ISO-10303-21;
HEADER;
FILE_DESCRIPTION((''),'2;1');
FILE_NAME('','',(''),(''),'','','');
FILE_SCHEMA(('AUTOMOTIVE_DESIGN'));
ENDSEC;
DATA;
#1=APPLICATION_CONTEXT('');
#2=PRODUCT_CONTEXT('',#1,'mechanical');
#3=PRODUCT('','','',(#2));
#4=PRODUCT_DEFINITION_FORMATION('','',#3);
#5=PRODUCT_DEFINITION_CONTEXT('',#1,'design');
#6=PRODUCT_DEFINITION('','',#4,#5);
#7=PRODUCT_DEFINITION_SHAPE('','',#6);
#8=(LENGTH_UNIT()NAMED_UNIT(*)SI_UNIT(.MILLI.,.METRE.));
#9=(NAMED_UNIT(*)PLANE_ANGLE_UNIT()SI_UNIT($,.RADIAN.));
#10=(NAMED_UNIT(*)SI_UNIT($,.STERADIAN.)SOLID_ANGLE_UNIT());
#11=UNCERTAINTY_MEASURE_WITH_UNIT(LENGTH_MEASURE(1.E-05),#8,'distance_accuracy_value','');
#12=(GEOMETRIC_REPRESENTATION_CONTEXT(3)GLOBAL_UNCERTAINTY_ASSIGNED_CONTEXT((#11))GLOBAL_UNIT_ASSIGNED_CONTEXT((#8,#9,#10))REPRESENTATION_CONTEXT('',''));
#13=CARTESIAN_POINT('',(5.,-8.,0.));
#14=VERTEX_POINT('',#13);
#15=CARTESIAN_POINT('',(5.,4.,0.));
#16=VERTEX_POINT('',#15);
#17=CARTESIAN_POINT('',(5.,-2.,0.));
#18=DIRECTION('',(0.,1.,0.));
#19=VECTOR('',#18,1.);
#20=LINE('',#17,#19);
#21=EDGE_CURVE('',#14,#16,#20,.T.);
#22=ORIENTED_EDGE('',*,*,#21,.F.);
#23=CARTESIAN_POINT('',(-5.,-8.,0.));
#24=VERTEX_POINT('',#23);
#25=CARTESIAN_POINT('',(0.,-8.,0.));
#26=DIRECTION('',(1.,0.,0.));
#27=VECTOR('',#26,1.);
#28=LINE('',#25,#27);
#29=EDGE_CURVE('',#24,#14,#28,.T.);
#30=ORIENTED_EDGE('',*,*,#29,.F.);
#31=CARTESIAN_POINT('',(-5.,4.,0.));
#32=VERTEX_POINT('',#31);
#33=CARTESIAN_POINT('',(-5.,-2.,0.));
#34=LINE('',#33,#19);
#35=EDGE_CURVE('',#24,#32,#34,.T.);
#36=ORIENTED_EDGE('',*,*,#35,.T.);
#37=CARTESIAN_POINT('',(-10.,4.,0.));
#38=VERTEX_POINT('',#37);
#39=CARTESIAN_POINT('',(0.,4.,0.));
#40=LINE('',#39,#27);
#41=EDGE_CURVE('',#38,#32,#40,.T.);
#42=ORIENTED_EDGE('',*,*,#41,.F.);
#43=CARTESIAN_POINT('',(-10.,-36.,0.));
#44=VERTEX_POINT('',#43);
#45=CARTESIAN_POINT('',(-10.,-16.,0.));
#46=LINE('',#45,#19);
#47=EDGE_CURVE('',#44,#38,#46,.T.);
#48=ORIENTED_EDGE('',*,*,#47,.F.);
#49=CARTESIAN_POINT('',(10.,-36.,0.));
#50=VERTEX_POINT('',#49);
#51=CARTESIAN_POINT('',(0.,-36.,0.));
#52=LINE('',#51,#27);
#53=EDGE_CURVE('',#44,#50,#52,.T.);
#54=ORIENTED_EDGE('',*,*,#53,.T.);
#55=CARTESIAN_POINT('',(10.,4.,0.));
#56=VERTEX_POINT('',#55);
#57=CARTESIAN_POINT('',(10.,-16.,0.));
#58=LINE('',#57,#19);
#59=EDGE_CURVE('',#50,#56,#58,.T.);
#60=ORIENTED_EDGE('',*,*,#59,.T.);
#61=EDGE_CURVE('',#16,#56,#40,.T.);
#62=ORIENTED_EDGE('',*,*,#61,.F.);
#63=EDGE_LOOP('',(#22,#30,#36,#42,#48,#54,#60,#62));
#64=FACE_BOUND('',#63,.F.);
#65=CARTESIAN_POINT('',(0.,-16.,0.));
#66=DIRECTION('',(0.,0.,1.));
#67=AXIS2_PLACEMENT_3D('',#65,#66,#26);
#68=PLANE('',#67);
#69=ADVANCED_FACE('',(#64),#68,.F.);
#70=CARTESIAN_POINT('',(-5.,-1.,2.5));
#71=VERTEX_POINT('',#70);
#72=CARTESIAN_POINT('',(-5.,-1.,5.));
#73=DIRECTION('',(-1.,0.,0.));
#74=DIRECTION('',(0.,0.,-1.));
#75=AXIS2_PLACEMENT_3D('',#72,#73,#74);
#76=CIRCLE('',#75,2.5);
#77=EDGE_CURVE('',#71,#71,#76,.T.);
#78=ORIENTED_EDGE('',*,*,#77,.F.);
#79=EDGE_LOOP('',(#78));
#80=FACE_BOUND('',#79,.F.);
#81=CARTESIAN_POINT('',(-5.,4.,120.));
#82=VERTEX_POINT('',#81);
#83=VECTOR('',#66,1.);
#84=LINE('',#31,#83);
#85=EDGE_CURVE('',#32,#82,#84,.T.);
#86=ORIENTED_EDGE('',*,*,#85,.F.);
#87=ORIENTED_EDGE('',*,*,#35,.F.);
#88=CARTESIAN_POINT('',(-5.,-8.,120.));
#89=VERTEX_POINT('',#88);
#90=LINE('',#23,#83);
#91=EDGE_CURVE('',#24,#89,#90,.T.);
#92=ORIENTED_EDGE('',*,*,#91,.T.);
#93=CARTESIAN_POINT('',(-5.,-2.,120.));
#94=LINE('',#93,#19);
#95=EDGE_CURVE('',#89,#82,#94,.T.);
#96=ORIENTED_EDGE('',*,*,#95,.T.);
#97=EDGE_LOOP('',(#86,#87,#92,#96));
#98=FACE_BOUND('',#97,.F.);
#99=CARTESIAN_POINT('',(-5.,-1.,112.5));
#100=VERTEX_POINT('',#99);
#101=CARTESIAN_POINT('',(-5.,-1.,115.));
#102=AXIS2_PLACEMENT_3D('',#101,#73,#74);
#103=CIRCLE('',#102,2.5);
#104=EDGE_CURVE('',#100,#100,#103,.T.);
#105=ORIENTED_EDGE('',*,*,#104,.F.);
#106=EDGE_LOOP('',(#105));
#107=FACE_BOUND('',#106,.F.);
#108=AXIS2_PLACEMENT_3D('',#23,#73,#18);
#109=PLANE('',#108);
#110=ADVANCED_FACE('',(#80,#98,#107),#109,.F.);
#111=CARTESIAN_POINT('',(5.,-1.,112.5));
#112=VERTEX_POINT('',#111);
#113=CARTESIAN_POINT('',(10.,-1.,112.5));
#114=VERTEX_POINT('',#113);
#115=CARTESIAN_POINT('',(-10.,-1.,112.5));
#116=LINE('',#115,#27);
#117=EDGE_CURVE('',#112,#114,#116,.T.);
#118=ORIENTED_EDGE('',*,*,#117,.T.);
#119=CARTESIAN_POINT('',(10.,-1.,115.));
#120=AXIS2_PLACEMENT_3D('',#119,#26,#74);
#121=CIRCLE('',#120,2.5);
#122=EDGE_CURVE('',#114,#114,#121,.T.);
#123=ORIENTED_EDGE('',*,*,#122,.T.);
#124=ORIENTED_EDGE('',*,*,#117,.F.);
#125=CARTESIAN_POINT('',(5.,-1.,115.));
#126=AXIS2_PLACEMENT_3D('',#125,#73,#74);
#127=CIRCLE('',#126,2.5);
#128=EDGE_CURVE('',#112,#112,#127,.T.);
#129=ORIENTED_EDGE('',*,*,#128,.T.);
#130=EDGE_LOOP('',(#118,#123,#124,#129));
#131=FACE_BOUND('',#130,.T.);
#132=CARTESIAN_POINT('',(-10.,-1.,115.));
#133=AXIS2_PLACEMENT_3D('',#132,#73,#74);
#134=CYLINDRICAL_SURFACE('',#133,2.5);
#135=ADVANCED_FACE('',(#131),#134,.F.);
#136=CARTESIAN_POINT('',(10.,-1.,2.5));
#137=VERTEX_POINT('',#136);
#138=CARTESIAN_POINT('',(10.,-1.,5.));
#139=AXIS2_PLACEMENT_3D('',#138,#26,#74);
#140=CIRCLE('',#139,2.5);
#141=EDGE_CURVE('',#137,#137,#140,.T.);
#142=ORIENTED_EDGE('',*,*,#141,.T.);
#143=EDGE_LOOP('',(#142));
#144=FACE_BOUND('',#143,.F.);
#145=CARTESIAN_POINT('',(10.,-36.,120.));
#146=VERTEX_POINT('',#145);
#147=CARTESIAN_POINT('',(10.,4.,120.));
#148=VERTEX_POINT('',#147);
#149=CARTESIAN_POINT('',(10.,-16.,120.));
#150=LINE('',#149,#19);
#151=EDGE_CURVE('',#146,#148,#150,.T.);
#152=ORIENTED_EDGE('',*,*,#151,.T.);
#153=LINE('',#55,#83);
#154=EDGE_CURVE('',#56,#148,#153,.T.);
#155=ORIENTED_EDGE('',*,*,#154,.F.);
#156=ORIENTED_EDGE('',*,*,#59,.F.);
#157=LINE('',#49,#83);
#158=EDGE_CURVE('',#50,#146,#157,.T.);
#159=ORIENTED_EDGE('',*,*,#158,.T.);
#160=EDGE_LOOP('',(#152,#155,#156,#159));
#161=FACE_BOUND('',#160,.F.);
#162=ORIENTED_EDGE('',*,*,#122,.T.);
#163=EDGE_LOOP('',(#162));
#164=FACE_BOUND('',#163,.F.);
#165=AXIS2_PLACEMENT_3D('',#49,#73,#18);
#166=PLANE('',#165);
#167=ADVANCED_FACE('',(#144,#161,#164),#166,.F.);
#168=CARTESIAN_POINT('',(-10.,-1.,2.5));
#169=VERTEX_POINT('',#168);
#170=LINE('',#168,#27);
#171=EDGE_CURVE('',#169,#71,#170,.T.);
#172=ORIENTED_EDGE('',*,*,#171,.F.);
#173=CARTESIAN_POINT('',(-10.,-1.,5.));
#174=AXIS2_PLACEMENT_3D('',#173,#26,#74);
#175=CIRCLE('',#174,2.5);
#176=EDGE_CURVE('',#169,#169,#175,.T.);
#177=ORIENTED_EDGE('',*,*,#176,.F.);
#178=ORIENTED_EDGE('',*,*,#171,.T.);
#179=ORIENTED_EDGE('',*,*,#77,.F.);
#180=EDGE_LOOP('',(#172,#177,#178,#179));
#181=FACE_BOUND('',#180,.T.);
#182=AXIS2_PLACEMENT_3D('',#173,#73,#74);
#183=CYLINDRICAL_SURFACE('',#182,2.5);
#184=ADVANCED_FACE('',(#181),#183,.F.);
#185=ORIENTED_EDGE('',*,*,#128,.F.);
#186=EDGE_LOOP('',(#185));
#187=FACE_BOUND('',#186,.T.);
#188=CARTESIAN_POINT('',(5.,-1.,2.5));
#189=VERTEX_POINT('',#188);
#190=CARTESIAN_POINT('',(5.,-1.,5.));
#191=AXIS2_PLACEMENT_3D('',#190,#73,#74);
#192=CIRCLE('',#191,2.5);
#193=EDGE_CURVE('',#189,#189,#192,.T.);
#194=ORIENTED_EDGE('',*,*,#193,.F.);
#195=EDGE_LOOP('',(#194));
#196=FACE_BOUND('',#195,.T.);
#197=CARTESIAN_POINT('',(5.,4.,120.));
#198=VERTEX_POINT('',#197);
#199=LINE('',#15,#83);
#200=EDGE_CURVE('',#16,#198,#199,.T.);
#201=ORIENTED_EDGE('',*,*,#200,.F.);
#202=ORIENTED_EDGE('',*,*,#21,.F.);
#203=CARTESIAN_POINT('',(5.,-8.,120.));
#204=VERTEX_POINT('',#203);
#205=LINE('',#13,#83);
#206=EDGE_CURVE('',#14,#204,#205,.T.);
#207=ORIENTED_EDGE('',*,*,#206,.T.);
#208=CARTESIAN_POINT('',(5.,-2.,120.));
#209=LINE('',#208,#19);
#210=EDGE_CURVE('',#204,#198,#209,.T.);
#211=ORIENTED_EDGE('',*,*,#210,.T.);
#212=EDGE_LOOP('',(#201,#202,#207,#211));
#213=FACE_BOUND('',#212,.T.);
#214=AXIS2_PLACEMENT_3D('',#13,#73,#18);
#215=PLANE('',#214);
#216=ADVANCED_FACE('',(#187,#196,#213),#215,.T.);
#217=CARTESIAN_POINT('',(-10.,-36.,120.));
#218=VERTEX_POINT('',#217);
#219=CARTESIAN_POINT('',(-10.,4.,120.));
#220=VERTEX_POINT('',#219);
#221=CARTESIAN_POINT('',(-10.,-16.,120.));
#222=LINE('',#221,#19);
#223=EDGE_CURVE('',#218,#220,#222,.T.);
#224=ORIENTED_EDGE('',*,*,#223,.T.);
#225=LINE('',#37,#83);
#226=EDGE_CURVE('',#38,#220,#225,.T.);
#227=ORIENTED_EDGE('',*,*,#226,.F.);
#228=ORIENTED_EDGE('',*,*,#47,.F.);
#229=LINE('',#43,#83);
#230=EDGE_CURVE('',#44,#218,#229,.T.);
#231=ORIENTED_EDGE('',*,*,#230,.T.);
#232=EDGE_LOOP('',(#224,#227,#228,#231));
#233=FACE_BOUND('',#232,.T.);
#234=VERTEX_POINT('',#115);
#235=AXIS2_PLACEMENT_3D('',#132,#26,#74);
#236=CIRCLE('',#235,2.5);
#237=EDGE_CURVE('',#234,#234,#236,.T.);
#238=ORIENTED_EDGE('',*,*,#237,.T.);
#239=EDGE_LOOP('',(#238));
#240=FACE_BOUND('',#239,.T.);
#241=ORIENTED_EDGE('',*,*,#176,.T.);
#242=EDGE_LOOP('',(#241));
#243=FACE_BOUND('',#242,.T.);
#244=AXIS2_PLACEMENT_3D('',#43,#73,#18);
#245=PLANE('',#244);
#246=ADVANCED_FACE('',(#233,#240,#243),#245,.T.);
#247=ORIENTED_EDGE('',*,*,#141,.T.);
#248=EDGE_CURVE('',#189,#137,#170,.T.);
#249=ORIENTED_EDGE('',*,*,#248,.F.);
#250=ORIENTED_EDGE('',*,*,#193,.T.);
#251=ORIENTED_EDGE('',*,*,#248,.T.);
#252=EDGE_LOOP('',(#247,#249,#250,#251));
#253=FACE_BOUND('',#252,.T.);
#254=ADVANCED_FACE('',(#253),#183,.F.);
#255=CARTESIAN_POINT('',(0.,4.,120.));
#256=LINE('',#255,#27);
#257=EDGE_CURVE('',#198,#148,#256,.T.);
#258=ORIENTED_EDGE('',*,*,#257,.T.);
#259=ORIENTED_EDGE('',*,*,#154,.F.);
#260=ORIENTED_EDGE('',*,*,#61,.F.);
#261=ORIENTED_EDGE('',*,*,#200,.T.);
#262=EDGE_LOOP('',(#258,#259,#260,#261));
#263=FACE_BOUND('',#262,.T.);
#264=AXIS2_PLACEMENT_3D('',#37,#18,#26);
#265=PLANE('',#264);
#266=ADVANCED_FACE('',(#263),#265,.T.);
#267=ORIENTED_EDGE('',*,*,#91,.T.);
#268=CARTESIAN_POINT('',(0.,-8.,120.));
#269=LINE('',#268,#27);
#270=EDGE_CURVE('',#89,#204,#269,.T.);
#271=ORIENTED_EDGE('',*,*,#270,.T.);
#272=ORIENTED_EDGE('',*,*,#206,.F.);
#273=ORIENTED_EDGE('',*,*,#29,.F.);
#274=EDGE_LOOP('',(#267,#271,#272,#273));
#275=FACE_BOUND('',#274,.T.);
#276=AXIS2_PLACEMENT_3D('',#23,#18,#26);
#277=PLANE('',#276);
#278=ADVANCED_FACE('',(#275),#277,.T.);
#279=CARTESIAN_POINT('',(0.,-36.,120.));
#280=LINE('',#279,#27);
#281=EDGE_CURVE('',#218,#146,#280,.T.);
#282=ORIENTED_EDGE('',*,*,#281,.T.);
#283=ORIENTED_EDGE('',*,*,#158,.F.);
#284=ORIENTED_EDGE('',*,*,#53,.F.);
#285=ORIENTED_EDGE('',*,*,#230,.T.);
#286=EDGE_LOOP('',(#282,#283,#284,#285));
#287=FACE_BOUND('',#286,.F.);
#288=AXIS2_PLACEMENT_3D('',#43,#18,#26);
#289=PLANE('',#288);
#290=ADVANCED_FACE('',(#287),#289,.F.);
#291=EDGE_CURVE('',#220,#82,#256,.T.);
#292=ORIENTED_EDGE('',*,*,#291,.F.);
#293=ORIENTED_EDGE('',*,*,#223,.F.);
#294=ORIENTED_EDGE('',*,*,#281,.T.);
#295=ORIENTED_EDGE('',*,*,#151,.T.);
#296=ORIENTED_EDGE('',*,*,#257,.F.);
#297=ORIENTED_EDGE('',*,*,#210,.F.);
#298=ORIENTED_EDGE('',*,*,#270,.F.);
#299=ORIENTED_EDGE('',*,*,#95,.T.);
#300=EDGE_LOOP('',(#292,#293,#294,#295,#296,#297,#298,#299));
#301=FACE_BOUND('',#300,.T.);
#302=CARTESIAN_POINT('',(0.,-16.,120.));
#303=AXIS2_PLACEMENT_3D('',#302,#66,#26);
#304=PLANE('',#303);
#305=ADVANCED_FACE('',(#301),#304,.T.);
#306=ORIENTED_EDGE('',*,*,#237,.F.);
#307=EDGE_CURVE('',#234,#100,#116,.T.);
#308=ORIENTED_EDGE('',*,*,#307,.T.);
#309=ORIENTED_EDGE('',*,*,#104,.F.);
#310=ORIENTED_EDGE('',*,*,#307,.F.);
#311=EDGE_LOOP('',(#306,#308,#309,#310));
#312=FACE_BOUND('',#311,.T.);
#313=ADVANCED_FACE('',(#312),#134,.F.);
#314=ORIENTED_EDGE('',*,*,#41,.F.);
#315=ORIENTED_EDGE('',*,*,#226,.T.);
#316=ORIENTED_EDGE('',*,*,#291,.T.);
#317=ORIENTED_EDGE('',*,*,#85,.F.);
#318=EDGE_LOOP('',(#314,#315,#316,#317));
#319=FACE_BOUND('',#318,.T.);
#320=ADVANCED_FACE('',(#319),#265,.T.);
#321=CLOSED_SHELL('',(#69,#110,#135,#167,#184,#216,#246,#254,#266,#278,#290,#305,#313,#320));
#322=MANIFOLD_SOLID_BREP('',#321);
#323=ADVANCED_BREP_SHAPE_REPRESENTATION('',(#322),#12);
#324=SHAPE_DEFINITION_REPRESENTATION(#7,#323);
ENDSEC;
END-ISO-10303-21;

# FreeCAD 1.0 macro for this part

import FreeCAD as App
import Part
import Sketcher
Q = App.Units.Quantity


def add_polygon(sketch, points):
    """Adds a closed chain of lines whose ends are joined by coincident constraints."""
    first, n = sketch.GeometryCount, len(points)
    for a, b in zip(points, points[1:] + points[:1]):
        sketch.addGeometry(Part.LineSegment(App.Vector(*a, 0), App.Vector(*b, 0)), False)
    for i in range(n):
        sketch.addConstraint(Sketcher.Constraint("Coincident", first + i, 2, first + (i + 1) % n, 1))

doc = App.newDocument("Part")
body = doc.addObject("PartDesign::Body", "Body")

# Sketch on YZ plane
sketch1 = body.newObject("Sketcher::SketchObject", "Sketch")
sketch1.AttachmentSupport = (doc.getObject("YZ_Plane"), [""])
sketch1.MapMode = "FlatFace"
sketch1.AttachmentOffset = App.Placement(App.Vector(0, 0, -10), App.Rotation())
sketch1.addGeometry(Part.Circle(App.Vector(59, 115, 0), App.Vector(0, 0, 1), 2.5), False)
sketch1.addConstraint([
    Sketcher.Constraint("Diameter", 0, Q("5 mm")),
    Sketcher.Constraint("DistanceX", -1, 1, 0, 3, Q("59 mm")),
    Sketcher.Constraint("DistanceY", -1, 1, 0, 3, Q("115 mm")),
])
pad1 = body.newObject("PartDesign::Pad", "Pad")
pad1.Profile = sketch1
pad1.Length = 20
body2 = doc.addObject("PartDesign::Body", "Body001")
body2.AllowCompound = True

# Sketch on YZ plane
sketch2 = body2.newObject("Sketcher::SketchObject", "Sketch001")
sketch2.AttachmentSupport = (doc.getObject("YZ_Plane001"), [""])
sketch2.MapMode = "FlatFace"
sketch2.AttachmentOffset = App.Placement(App.Vector(0, 0, -10), App.Rotation())
sketch2.addGeometry(Part.Circle(App.Vector(59, 5, 0), App.Vector(0, 0, 1), 2.5), False)
sketch2.addConstraint([
    Sketcher.Constraint("Diameter", 0, Q("5 mm")),
    Sketcher.Constraint("DistanceX", -1, 1, 0, 3, Q("59 mm")),
    Sketcher.Constraint("DistanceY", -1, 1, 0, 3, Q("5 mm")),
])
pad2 = body2.newObject("PartDesign::Pad", "Pad001")
pad2.Profile = sketch2
pad2.Length = 20
doc.recompute()

boolean = body2.newObject("PartDesign::Boolean", "Boolean")
boolean.Type = "Fuse"
boolean.addObjects([body])
body3 = doc.addObject("PartDesign::Body", "Body002")
body3.AllowCompound = True
doc.recompute()

body2.Placement = App.Placement(App.Vector(0, -60, 0), App.Rotation(App.Vector(0, 0, 1), 0))
boolean2 = body3.newObject("PartDesign::Boolean", "Boolean001")
boolean2.Type = "Fuse"
boolean2.addObjects([body2])
body4 = doc.addObject("PartDesign::Body", "Body003")

# Sketch on XY plane
sketch3 = body4.newObject("Sketcher::SketchObject", "Sketch002")
sketch3.AttachmentSupport = (doc.getObject("XY_Plane003"), [""])
sketch3.MapMode = "FlatFace"
add_polygon(sketch3, [(-5, -60), (-5, -72), (5, -72), (5, -60)])  # lines 0-3
sketch3.addConstraint([
    Sketcher.Constraint("Vertical", 0),
    Sketcher.Constraint("Horizontal", 1),
    Sketcher.Constraint("Vertical", 2),
    Sketcher.Constraint("Horizontal", 3),
    Sketcher.Constraint("DistanceX", 1, 1, 1, 2, Q("10 mm")),
    Sketcher.Constraint("DistanceY", 0, 2, 0, 1, Q("12 mm")),
    Sketcher.Constraint("DistanceX", 0, 2, -1, 1, Q("5 mm")),
    Sketcher.Constraint("DistanceY", 0, 2, -1, 1, Q("72 mm")),
])
pad3 = body4.newObject("PartDesign::Pad", "Pad002")
pad3.Profile = sketch3
pad3.Length = 120
body5 = doc.addObject("PartDesign::Body", "Body004")

# Sketch on XY plane
sketch4 = body5.newObject("Sketcher::SketchObject", "Sketch003")
sketch4.AttachmentSupport = (doc.getObject("XY_Plane004"), [""])
sketch4.MapMode = "FlatFace"
add_polygon(sketch4, [(-10, -60), (-10, -100), (10, -100), (10, -60)])  # lines 0-3
sketch4.addConstraint([
    Sketcher.Constraint("Vertical", 0),
    Sketcher.Constraint("Horizontal", 1),
    Sketcher.Constraint("Vertical", 2),
    Sketcher.Constraint("Horizontal", 3),
    Sketcher.Constraint("DistanceX", 1, 1, 1, 2, Q("20 mm")),
    Sketcher.Constraint("DistanceY", 0, 2, 0, 1, Q("40 mm")),
    Sketcher.Constraint("DistanceX", 0, 2, -1, 1, Q("10 mm")),
    Sketcher.Constraint("DistanceY", 0, 2, -1, 1, Q("100 mm")),
])
pad4 = body5.newObject("PartDesign::Pad", "Pad003")
pad4.Profile = sketch4
pad4.Length = 120
doc.recompute()

boolean3 = body5.newObject("PartDesign::Boolean", "Boolean002")
boolean3.Type = "Cut"
boolean3.addObjects([body4])
body6 = doc.addObject("PartDesign::Body", "Body005")
doc.recompute()

body5.Placement = App.Placement(App.Vector(0, 64, 0), App.Rotation(App.Vector(0, 0, 1), 0))
boolean4 = body6.newObject("PartDesign::Boolean", "Boolean003")
boolean4.Type = "Fuse"
boolean4.addObjects([body5])
doc.recompute()

boolean5 = body6.newObject("PartDesign::Boolean", "Boolean004")
boolean5.Type = "Cut"
boolean5.addObjects([body3])

doc.recompute()
